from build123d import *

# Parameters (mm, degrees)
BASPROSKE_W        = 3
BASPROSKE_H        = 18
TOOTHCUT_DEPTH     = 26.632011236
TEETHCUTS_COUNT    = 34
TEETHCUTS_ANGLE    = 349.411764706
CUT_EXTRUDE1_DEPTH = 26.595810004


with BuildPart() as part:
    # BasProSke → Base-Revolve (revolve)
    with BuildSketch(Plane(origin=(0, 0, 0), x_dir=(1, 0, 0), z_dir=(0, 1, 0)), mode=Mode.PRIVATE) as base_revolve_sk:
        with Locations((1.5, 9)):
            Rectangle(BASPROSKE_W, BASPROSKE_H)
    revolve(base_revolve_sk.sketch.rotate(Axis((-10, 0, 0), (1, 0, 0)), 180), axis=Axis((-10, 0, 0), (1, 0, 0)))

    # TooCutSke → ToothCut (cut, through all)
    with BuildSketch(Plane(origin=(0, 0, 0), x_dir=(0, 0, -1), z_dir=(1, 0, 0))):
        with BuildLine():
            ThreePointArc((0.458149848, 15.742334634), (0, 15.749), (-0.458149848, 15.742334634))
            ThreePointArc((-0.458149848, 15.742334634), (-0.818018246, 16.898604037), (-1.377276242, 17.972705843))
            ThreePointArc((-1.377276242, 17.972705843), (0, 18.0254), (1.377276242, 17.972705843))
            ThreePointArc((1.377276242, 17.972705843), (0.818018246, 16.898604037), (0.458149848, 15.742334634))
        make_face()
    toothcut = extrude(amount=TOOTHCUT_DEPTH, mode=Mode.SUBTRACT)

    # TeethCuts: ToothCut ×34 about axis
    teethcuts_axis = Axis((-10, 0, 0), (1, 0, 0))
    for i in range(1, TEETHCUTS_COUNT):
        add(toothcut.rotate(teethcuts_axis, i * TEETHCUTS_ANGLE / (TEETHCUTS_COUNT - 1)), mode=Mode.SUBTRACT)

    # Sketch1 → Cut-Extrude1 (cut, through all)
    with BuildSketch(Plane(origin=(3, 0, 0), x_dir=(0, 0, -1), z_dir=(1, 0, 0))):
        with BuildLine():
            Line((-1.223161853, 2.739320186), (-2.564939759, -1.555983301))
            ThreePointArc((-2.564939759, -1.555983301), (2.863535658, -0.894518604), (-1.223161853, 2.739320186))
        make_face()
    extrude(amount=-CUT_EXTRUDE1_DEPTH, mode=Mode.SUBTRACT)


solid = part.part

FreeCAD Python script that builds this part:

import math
import FreeCAD as App
import Part
import Sketcher

V = App.Vector
Q = App.Units.Quantity

doc = App.newDocument("Part")
body = doc.addObject("PartDesign::Body", "Body")

sketch1 = body.newObject("Sketcher::SketchObject", "Sketch")
sketch1.AttachmentSupport = (doc.getObject("XZ_Plane"), [""])
sketch1.MapMode = "FlatFace"
sketch1.addGeometry(Part.LineSegment(V(0, -18, 0), V(0, 0, 0)), False)
sketch1.addGeometry(Part.LineSegment(V(0, 0, 0), V(3, 0, 0)), False)
sketch1.addGeometry(Part.LineSegment(V(3, 0, 0), V(3, -18, 0)), False)
sketch1.addGeometry(Part.LineSegment(V(3, -18, 0), V(0, -18, 0)), False)
sketch1.addConstraint(Sketcher.Constraint("Coincident", 0, 2, 1, 1))
sketch1.addConstraint(Sketcher.Constraint("Coincident", 1, 2, 2, 1))
sketch1.addConstraint(Sketcher.Constraint("Coincident", 2, 2, 3, 1))
sketch1.addConstraint(Sketcher.Constraint("Coincident", 3, 2, 0, 1))
sketch1.addConstraint(Sketcher.Constraint("Vertical", 0))
sketch1.addConstraint(Sketcher.Constraint("Horizontal", 1))
sketch1.addConstraint(Sketcher.Constraint("Vertical", 2))
sketch1.addConstraint(Sketcher.Constraint("Horizontal", 3))
sketch1.addConstraint(Sketcher.Constraint("Coincident", 0, 2, -1, 1))
sketch1.addConstraint(Sketcher.Constraint("DistanceX", 1, 1, 1, 2, Q("3 mm")))
sketch1.addConstraint(Sketcher.Constraint("DistanceY", 0, 1, 0, 2, Q("18 mm")))
revolution = body.newObject("PartDesign::Revolution", "Revolution")
revolution.Profile = sketch1
revolution.ReferenceAxis = (sketch1, ["H_Axis"])
revolution.Angle = 360

sketch2 = body.newObject("Sketcher::SketchObject", "Sketch001")
sketch2.AttachmentSupport = (doc.getObject("YZ_Plane"), [""])
sketch2.MapMode = "FlatFace"
sketch2.addGeometry(Part.ArcOfCircle(Part.Circle(V(0, 0, 0), V(0, 0, 1), 15.7), math.radians(-1.67), math.radians(1.67)), False)
sketch2.addGeometry(Part.ArcOfCircle(Part.Circle(V(14.3, -7.1, 0), V(0, 0, 1), 6.8), math.radians(57), math.radians(78)), False)
sketch2.addGeometry(Part.ArcOfCircle(Part.Circle(V(0, 0, 0), V(0, 0, 1), 18), math.radians(-4.38), math.radians(4.38)), False)
sketch2.addGeometry(Part.ArcOfCircle(Part.Circle(V(14.3, 7.1, 0), V(0, 0, 1), 6.8), math.radians(-78), math.radians(-57)), False)
sketch2.addConstraint(Sketcher.Constraint("Coincident", 0, 1, 1, 2))
sketch2.addConstraint(Sketcher.Constraint("Coincident", 1, 1, 2, 1))
sketch2.addConstraint(Sketcher.Constraint("Coincident", 2, 2, 3, 2))
sketch2.addConstraint(Sketcher.Constraint("Coincident", 3, 1, 0, 2))
sketch2.addConstraint(Sketcher.Constraint("Coincident", 0, 3, -1, 1))
sketch2.addConstraint(Sketcher.Constraint("Coincident", 2, 3, -1, 1))
sketch2.addConstraint(Sketcher.Constraint("Equal", 1, 3))
sketch2.addConstraint(Sketcher.Constraint("Symmetric", 1, 3, 3, 3, -1))
sketch2.addConstraint(Sketcher.Constraint("Radius", 1, Q("6.8 mm")))
sketch2.addConstraint(Sketcher.Constraint("Radius", 0, Q("15.749001 mm")))
sketch2.addConstraint(Sketcher.Constraint("Radius", 2, Q("18.0254 mm")))
sketch2.addConstraint(Sketcher.Constraint("DistanceY", 0, 1, 3, 1, Q("0.9163 mm")))
sketch2.addConstraint(Sketcher.Constraint("DistanceX", 1, 3, 0, 1, Q("1.434608 mm")))
pocket1 = body.newObject("PartDesign::Pocket", "Pocket")
pocket1.Profile = sketch2
pocket1.Type = "ThroughAll"
pocket1.Reversed = True
doc.recompute()

polarpattern = body.newObject("PartDesign::PolarPattern", "PolarPattern")
polarpattern.Originals = [pocket1]
polarpattern.Axis = (doc.getObject("X_Axis"), [""])
polarpattern.Angle = 360
polarpattern.Occurrences = 34
body.Tip = polarpattern

sketch3 = body.newObject("Sketcher::SketchObject", "Sketch002")
sketch3.AttachmentSupport = (doc.getObject("YZ_Plane"), [""])
sketch3.MapMode = "FlatFace"
sketch3.AttachmentOffset = App.Placement(V(0, 0, 3), App.Rotation())
sketch3.addGeometry(Part.LineSegment(V(2.7, 1.2, 0), V(-1.6, 2.6, 0)), False)
sketch3.addGeometry(Part.ArcOfCircle(Part.Circle(V(0, 0, 0), V(0, 0, 1), 3), math.radians(121), math.radians(384)), False)
sketch3.addConstraint(Sketcher.Constraint("Coincident", 0, 1, 1, 2))
sketch3.addConstraint(Sketcher.Constraint("Coincident", 1, 1, 0, 2))
sketch3.addConstraint(Sketcher.Constraint("Coincident", 1, 3, -1, 1))
sketch3.addConstraint(Sketcher.Constraint("Radius", 1, Q("3 mm")))
sketch3.addConstraint(Sketcher.Constraint("Distance", 0, Q("4.5 mm")))
sketch3.addConstraint(Sketcher.Constraint("DistanceX", -1, 1, 0, 1, Q("2.73932 mm")))
pocket2 = body.newObject("PartDesign::Pocket", "Pocket001")
pocket2.Profile = sketch3
pocket2.Type = "ThroughAll"

doc.recompute()
